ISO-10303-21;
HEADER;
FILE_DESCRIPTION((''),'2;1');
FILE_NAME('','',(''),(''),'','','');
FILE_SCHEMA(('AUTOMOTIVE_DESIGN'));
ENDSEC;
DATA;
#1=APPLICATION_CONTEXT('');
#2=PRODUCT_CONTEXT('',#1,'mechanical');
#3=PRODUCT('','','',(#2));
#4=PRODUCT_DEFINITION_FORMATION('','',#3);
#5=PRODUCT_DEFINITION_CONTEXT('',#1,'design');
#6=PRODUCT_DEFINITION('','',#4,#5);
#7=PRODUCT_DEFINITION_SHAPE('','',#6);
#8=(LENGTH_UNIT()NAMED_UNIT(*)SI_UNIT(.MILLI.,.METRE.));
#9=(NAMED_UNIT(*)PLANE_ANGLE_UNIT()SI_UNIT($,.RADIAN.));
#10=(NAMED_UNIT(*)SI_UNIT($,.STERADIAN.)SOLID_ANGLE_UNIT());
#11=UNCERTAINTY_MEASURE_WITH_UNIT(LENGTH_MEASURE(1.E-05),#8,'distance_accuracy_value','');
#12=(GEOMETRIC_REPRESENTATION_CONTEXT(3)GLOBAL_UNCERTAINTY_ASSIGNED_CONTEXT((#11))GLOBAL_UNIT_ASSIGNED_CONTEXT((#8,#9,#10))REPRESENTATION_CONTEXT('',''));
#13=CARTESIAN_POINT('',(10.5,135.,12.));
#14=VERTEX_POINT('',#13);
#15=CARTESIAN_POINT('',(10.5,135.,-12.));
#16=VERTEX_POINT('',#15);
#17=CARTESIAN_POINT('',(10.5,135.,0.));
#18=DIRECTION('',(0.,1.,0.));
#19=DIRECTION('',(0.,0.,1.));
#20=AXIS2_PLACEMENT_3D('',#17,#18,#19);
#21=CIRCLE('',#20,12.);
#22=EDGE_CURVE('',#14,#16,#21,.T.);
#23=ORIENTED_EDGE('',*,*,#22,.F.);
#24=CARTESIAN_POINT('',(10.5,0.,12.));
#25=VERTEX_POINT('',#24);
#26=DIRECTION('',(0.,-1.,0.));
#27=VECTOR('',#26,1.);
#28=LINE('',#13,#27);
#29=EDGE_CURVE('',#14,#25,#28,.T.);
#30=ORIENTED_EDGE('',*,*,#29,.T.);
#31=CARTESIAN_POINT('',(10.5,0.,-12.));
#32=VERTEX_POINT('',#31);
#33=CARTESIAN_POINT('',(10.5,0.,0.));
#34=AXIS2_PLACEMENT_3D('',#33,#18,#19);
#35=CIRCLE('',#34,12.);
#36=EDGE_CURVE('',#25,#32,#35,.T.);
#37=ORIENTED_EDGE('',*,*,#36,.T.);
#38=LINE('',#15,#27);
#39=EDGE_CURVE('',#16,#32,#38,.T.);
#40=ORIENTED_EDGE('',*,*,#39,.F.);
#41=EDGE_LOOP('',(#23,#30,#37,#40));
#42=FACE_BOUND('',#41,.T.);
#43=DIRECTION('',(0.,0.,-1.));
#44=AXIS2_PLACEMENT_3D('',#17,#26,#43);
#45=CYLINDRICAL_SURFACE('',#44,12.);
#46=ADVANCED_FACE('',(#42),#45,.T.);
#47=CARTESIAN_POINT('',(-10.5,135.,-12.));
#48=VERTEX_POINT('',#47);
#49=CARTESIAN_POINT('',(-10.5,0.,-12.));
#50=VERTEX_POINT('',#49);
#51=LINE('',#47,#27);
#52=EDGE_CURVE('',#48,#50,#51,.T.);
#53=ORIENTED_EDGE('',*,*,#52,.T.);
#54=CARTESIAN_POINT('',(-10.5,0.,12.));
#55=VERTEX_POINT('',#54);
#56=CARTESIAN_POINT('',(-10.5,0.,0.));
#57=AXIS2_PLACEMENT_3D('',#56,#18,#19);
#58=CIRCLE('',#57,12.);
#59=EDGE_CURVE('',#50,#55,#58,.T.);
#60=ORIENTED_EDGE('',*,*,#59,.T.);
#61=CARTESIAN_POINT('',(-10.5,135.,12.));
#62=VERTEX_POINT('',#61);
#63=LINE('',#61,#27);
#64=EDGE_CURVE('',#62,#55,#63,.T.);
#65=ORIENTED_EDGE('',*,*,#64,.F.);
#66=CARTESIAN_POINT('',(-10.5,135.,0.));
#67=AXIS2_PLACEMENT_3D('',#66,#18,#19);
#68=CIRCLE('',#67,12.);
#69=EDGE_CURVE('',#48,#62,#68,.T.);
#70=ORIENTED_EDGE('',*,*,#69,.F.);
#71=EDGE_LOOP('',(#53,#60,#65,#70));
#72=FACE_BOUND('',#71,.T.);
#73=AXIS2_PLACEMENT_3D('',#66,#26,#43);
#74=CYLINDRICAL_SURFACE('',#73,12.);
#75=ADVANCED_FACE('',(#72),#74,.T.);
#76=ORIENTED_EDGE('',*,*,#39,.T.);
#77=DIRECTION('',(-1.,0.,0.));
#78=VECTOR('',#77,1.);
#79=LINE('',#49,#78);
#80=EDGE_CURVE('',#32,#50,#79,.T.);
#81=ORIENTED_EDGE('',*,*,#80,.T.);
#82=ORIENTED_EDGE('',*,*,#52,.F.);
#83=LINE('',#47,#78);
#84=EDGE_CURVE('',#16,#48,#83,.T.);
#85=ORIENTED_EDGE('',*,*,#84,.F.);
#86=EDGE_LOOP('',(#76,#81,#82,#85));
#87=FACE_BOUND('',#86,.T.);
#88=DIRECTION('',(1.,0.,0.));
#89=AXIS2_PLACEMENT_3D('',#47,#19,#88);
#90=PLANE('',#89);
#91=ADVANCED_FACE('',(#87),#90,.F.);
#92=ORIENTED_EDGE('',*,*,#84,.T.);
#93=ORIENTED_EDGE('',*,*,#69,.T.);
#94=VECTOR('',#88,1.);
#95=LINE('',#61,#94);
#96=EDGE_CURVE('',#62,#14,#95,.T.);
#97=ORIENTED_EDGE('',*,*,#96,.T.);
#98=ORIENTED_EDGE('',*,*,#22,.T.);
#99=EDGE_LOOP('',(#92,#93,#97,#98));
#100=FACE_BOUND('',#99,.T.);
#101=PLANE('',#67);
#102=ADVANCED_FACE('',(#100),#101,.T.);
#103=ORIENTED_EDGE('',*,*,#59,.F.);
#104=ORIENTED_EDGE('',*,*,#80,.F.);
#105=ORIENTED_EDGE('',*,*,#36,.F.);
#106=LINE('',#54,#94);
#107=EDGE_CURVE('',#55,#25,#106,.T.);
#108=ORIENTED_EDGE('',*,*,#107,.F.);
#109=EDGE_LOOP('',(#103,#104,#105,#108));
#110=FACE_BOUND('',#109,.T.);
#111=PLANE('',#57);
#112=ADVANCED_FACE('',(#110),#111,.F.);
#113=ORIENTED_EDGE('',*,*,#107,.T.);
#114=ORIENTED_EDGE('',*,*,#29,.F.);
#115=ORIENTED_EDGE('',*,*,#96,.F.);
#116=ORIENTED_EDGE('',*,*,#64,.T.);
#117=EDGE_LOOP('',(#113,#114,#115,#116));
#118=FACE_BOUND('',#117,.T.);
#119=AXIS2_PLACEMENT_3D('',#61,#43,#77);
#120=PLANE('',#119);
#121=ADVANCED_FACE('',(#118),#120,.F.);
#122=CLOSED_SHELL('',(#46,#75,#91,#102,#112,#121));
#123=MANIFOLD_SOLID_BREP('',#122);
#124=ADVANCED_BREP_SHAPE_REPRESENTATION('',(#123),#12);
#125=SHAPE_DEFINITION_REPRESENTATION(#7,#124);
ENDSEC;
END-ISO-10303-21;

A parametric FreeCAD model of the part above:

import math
import FreeCAD as App
import Part
import Sketcher
from FreeCAD import Vector

doc = App.newDocument("Part")
body = doc.addObject("PartDesign::Body", "Body")

# Sketch on XZ plane
sketch1 = doc.addObject("Sketcher::SketchObject", "Sketch")
body.addObject(sketch1)
sketch1.AttachmentSupport = (doc.XZ_Plane, [""])
sketch1.MapMode = "FlatFace"
sketch1.addGeometry(Part.LineSegment(Vector(10.5, -12, 0), Vector(-10.5, -12, 0)), False)
sketch1.addGeometry(Part.ArcOfCircle(Part.Circle(Vector(-10.5, 0, 0), Vector(0, 0, 1), 12), math.radians(90), math.radians(270)), False)
sketch1.addGeometry(Part.LineSegment(Vector(-10.5, 12, 0), Vector(10.5, 12, 0)), False)
sketch1.addGeometry(Part.ArcOfCircle(Part.Circle(Vector(10.5, 0, 0), Vector(0, 0, 1), 12), math.radians(-90), math.radians(90)), False)
sketch1.addConstraint(Sketcher.Constraint("Tangent", 0, 2, 1, 2))
sketch1.addConstraint(Sketcher.Constraint("Tangent", 1, 1, 2, 1))
sketch1.addConstraint(Sketcher.Constraint("Tangent", 2, 2, 3, 2))
sketch1.addConstraint(Sketcher.Constraint("Tangent", 3, 1, 0, 1))
sketch1.addConstraint(Sketcher.Constraint("Horizontal", 0))
sketch1.addConstraint(Sketcher.Constraint("Horizontal", 2))
sketch1.addConstraint(Sketcher.Constraint("Symmetric", 1, 3, 3, 3, -1, 1))
sketch1.addConstraint(Sketcher.Constraint("Radius", 1, 12.0))
sketch1.addConstraint(Sketcher.Constraint("DistanceX", 0, 2, 0, 1, 21.0))
pad1 = doc.addObject("PartDesign::Pad", "Pad")
body.addObject(pad1)
pad1.Profile = sketch1
pad1.Length = 135
pad1.Reversed = True

doc.recompute()
